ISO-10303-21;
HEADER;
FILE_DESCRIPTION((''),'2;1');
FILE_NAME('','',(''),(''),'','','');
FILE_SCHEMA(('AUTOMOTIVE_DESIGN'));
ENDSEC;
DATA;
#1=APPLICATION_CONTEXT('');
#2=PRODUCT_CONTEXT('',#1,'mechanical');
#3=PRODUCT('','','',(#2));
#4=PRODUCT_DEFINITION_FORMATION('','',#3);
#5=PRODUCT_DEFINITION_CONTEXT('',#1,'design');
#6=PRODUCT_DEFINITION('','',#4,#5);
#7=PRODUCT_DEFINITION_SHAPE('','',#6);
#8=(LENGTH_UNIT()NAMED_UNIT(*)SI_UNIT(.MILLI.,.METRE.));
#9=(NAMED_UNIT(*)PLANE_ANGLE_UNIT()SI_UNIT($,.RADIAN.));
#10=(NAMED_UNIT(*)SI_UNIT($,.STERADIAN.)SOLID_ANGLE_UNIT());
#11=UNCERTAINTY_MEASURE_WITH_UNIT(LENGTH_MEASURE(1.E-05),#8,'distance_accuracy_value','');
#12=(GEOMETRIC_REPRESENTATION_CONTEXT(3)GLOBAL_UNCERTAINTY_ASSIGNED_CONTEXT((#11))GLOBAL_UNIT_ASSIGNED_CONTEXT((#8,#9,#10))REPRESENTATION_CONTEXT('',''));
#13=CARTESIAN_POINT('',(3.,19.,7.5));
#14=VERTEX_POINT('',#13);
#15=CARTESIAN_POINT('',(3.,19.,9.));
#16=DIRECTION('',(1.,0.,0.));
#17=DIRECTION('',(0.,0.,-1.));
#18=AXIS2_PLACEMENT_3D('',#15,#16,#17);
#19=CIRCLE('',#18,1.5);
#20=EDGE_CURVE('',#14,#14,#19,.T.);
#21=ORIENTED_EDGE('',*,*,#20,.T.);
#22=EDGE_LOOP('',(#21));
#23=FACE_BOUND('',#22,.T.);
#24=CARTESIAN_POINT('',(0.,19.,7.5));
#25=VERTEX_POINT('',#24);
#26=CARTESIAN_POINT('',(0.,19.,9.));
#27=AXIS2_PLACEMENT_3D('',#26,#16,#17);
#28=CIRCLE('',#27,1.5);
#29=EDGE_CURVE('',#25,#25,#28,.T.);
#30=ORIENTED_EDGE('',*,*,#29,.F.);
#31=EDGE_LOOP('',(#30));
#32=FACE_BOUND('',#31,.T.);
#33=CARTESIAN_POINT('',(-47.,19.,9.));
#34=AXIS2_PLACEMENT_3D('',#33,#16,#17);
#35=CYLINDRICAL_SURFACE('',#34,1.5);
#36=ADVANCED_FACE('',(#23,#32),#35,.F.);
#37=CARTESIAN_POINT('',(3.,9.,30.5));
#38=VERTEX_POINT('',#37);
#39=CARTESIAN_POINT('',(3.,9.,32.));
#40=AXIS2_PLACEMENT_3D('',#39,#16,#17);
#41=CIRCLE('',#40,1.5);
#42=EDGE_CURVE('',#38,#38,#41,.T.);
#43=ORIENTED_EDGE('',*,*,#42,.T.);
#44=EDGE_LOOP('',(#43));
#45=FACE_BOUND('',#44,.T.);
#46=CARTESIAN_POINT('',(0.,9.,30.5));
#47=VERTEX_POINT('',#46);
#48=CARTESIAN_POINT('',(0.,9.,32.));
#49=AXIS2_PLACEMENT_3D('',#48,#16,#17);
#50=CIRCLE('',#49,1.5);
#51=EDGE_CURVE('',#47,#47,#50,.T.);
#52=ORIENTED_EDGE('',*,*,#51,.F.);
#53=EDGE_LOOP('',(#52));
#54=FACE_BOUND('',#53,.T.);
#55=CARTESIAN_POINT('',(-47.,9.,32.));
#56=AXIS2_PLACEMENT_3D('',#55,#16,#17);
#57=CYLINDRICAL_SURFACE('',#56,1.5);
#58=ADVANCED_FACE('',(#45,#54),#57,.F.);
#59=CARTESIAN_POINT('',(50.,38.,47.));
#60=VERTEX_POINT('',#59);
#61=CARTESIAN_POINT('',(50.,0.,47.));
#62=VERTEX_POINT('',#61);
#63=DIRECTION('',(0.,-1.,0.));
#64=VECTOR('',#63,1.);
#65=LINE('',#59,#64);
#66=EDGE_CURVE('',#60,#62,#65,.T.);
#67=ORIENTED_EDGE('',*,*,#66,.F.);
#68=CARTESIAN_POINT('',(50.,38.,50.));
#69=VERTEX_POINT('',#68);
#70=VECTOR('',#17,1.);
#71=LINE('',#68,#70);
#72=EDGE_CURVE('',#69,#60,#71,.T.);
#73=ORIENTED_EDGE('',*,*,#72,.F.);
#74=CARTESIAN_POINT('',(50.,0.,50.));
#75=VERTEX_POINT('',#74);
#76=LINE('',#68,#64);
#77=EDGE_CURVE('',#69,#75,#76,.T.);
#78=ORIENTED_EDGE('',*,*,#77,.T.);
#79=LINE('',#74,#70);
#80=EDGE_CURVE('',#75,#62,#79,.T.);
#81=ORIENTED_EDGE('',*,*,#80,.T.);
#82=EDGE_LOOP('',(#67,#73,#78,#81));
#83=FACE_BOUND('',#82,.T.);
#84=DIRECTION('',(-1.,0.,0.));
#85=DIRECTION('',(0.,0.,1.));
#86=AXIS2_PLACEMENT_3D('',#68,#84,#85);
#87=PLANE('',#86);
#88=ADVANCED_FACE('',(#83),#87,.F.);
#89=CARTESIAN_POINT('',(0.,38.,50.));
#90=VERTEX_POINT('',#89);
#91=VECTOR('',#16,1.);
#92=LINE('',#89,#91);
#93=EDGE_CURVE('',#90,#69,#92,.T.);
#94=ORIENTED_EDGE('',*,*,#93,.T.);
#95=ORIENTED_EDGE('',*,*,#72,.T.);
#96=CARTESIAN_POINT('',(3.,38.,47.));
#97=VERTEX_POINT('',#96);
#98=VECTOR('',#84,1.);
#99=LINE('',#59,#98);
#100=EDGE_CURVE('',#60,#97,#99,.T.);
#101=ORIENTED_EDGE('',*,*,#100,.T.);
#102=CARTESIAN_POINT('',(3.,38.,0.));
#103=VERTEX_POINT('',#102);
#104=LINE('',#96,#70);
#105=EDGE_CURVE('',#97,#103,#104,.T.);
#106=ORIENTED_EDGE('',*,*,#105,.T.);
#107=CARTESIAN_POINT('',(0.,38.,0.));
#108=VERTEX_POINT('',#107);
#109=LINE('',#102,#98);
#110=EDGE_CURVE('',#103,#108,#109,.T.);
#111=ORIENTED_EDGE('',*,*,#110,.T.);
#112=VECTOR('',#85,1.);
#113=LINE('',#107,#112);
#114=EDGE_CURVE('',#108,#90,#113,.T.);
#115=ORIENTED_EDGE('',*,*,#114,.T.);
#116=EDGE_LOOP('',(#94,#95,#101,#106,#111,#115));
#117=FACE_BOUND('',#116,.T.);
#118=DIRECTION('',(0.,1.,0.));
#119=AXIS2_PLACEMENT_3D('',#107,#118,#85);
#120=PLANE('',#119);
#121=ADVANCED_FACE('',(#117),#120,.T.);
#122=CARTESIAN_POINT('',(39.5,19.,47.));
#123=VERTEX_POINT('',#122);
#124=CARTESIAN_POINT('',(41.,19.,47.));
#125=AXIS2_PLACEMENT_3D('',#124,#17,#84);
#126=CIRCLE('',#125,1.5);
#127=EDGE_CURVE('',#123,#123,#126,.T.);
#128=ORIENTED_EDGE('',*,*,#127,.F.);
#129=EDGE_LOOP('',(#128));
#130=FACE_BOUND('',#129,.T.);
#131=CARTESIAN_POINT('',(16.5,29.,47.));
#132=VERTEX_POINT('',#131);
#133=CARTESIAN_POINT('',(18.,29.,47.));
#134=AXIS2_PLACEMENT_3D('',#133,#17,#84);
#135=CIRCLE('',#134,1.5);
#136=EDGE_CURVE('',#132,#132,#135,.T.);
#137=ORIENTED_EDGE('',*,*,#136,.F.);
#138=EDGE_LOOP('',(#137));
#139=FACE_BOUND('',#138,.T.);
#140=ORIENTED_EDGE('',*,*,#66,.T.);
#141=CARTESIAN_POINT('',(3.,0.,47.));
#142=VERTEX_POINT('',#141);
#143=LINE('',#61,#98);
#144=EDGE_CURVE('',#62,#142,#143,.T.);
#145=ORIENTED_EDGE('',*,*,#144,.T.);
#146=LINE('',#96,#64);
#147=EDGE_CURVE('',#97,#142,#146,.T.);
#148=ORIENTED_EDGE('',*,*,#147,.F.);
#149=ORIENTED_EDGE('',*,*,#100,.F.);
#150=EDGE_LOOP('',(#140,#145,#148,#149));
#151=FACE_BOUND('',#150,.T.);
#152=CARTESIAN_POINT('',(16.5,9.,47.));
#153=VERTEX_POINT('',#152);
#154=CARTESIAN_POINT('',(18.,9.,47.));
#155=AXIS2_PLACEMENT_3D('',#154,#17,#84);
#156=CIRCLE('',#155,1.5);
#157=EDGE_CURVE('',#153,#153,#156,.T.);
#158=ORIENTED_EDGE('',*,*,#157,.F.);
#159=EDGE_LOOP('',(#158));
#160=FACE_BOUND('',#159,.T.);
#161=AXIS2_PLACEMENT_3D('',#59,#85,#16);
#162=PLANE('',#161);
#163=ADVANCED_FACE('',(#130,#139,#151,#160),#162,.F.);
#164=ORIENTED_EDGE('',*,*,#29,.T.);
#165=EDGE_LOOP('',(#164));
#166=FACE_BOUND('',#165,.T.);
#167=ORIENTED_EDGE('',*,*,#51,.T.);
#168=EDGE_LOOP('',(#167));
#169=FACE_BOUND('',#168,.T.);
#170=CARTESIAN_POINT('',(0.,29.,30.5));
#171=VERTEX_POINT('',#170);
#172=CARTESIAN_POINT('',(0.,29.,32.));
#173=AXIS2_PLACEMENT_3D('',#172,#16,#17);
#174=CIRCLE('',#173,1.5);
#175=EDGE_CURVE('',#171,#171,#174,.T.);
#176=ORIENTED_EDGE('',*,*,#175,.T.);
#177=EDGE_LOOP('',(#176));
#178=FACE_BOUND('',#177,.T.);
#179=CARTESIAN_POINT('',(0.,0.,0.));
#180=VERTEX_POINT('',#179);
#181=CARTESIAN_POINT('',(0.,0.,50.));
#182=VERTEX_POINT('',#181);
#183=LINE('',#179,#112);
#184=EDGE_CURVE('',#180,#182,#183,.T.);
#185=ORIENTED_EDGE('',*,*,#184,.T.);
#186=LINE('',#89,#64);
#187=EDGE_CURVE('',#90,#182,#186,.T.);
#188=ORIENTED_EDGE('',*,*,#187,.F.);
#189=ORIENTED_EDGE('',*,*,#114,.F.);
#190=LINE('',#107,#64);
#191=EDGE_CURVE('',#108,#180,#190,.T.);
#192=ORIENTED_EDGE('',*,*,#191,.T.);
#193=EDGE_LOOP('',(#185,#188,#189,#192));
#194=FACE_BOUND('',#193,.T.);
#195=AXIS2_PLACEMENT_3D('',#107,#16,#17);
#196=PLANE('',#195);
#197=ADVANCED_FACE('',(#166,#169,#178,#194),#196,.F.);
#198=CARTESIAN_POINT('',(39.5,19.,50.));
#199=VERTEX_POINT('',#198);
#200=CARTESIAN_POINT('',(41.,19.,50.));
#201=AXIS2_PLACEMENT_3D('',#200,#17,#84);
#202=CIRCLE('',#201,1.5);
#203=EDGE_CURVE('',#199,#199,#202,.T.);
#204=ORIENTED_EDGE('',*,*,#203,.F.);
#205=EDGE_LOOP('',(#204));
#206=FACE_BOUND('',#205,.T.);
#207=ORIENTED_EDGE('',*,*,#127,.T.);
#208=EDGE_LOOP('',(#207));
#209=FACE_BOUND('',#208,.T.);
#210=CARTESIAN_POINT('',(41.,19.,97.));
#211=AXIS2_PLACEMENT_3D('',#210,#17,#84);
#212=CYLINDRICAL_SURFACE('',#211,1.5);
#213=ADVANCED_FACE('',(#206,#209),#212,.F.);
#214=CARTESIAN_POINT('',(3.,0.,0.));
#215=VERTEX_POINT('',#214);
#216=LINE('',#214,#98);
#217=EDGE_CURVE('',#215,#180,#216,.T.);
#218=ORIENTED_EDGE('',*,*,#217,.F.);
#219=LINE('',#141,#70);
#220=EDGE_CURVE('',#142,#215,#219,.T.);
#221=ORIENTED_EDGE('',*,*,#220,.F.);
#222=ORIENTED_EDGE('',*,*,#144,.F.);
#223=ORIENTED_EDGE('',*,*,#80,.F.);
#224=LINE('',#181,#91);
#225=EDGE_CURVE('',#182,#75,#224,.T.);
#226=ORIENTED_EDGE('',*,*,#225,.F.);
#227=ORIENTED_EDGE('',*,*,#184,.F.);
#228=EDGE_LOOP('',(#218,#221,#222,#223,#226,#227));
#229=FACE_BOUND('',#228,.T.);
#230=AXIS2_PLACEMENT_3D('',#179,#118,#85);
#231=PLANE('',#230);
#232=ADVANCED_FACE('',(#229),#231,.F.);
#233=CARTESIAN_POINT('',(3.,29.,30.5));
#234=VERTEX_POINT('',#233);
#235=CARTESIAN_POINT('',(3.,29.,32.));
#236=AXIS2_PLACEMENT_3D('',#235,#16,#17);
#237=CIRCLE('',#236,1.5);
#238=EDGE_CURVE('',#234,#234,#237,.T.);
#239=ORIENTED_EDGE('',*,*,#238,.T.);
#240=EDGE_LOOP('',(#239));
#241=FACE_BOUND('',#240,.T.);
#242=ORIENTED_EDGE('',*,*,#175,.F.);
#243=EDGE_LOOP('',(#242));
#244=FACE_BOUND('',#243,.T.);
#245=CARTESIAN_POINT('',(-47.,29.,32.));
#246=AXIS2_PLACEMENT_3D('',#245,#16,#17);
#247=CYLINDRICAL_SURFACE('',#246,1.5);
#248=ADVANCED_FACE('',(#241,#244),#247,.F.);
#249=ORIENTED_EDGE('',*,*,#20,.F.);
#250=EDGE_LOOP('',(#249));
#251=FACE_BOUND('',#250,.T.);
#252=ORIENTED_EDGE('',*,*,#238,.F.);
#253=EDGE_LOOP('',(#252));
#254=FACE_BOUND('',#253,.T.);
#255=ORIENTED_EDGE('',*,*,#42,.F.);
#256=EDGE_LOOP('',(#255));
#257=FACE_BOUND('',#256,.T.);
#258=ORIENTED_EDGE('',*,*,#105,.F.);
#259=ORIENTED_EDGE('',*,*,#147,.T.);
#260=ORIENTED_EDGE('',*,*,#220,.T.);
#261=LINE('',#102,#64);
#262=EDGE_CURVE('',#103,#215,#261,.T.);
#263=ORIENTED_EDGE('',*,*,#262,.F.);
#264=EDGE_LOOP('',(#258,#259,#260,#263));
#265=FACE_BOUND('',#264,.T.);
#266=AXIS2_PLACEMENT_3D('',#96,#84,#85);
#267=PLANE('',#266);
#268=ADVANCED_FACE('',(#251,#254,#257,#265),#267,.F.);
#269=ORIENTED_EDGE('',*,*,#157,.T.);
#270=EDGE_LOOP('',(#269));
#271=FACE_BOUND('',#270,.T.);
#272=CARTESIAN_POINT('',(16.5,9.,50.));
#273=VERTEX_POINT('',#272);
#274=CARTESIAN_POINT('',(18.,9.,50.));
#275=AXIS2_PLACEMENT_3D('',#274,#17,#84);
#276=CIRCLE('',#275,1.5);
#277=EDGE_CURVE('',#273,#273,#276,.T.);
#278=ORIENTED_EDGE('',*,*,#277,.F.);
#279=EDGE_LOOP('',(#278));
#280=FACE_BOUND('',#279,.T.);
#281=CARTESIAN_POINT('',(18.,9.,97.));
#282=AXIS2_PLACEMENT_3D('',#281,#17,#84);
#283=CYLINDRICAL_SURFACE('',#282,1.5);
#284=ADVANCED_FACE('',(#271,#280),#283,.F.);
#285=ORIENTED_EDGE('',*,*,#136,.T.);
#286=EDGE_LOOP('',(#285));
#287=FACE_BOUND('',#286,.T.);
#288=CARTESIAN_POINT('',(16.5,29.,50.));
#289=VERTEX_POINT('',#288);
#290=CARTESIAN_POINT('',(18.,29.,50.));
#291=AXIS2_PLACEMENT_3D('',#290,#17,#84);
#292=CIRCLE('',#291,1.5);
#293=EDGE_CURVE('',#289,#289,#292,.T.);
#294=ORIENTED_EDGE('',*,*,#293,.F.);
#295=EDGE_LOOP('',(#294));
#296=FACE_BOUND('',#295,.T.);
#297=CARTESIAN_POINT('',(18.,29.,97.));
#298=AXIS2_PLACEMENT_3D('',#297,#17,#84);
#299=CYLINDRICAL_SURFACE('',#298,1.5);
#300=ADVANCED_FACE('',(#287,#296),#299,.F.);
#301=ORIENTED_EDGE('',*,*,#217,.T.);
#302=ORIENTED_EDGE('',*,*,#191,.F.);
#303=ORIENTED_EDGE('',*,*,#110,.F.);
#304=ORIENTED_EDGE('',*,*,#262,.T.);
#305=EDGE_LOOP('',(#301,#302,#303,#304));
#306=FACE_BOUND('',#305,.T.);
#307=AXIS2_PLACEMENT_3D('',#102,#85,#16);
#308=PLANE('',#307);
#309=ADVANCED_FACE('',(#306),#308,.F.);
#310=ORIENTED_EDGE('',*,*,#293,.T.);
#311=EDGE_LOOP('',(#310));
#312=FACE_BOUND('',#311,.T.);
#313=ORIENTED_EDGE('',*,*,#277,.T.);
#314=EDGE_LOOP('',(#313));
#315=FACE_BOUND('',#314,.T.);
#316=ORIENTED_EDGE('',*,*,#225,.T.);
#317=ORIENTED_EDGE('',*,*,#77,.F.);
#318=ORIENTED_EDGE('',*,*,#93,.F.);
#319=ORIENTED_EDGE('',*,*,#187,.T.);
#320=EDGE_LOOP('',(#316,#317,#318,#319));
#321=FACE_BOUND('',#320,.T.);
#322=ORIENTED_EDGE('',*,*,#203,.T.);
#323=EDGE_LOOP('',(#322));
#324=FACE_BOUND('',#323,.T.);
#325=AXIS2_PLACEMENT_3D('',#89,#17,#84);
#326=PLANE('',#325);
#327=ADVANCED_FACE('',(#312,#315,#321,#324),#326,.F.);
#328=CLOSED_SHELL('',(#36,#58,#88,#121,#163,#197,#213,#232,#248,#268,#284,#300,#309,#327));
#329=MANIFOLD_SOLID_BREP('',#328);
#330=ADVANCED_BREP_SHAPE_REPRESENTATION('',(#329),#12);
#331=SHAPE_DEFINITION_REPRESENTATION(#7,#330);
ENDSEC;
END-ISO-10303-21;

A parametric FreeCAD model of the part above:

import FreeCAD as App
import Part
import Sketcher
Q = App.Units.Quantity

doc = App.newDocument("Part")
body = doc.addObject("PartDesign::Body", "Body")

# Sketch on XZ plane
sketch1 = body.newObject("Sketcher::SketchObject", "Sketch")
sketch1.AttachmentSupport = (doc.getObject("XZ_Plane"), [""])
sketch1.MapMode = "FlatFace"
sketch1.addGeometry([
    Part.LineSegment(App.Vector(0, 0, 0), App.Vector(0, 50, 0)),  # 0
    Part.LineSegment(App.Vector(0, 50, 0), App.Vector(50, 50, 0)),  # 1
    Part.LineSegment(App.Vector(50, 50, 0), App.Vector(50, 47, 0)),  # 2
    Part.LineSegment(App.Vector(50, 47, 0), App.Vector(3, 47, 0)),  # 3
    Part.LineSegment(App.Vector(3, 47, 0), App.Vector(3, 0, 0)),  # 4
    Part.LineSegment(App.Vector(3, 0, 0), App.Vector(0, 0, 0)),  # 5
], False)
sketch1.addConstraint([
    Sketcher.Constraint("Coincident", 0, 2, 1, 1),
    Sketcher.Constraint("Coincident", 1, 2, 2, 1),
    Sketcher.Constraint("Coincident", 2, 2, 3, 1),
    Sketcher.Constraint("Coincident", 3, 2, 4, 1),
    Sketcher.Constraint("Coincident", 4, 2, 5, 1),
    Sketcher.Constraint("Coincident", 5, 2, 0, 1),
    Sketcher.Constraint("Vertical", 0),
    Sketcher.Constraint("Horizontal", 1),
    Sketcher.Constraint("Vertical", 2),
    Sketcher.Constraint("Horizontal", 3),
    Sketcher.Constraint("Vertical", 4),
    Sketcher.Constraint("Horizontal", 5),
    Sketcher.Constraint("Coincident", 5, 2, -1, 1),
    Sketcher.Constraint("Equal", 1, 0),
    Sketcher.Constraint("Equal", 5, 2),
    Sketcher.Constraint("DistanceX", 1, 1, 1, 2, Q("50 mm")),
    Sketcher.Constraint("DistanceX", 3, 2, 3, 1, Q("47 mm")),
])
pad1 = body.newObject("PartDesign::Pad", "Pad")
pad1.Profile = sketch1
pad1.Length = 38
pad1.Reversed = True

# Sketch on YZ plane
sketch2 = body.newObject("Sketcher::SketchObject", "Sketch001")
sketch2.AttachmentSupport = (doc.getObject("YZ_Plane"), [""])
sketch2.MapMode = "FlatFace"
sketch2.AttachmentOffset = App.Placement(App.Vector(0, 0, 3), App.Rotation())
sketch2.addGeometry([
    Part.Circle(App.Vector(29, 32, 0), App.Vector(0, 0, 1), 1.5),
    Part.Circle(App.Vector(9, 32, 0), App.Vector(0, 0, 1), 1.5),
    Part.Circle(App.Vector(19, 9, 0), App.Vector(0, 0, 1), 1.5),
], False)
sketch2.addConstraint([
    Sketcher.Constraint("Equal", 0, 1),
    Sketcher.Constraint("Equal", 1, 2),
    Sketcher.Constraint("Horizontal", 0, 3, 1, 3),
    Sketcher.Constraint("Diameter", 0, Q("3 mm")),
    Sketcher.Constraint("DistanceX", -1, 1, 0, 3, Q("29 mm")),
    Sketcher.Constraint("DistanceY", -1, 1, 0, 3, Q("32 mm")),
    Sketcher.Constraint("DistanceX", -1, 1, 1, 3, Q("9 mm")),
    Sketcher.Constraint("DistanceX", -1, 1, 2, 3, Q("19 mm")),
    Sketcher.Constraint("DistanceY", -1, 1, 2, 3, Q("9 mm")),
])
pocket1 = body.newObject("PartDesign::Pocket", "Pocket")
pocket1.Profile = sketch2
pocket1.Length = 50

# Sketch on XY plane
sketch3 = body.newObject("Sketcher::SketchObject", "Sketch002")
sketch3.AttachmentSupport = (doc.getObject("XY_Plane"), [""])
sketch3.MapMode = "FlatFace"
sketch3.AttachmentOffset = App.Placement(App.Vector(0, 0, 47), App.Rotation())
sketch3.addGeometry([
    Part.Circle(App.Vector(18, 29, 0), App.Vector(0, 0, 1), 1.5),
    Part.Circle(App.Vector(18, 9, 0), App.Vector(0, 0, 1), 1.5),
    Part.Circle(App.Vector(41, 19, 0), App.Vector(0, 0, 1), 1.5),
], False)
sketch3.addConstraint([
    Sketcher.Constraint("Equal", 0, 1),
    Sketcher.Constraint("Equal", 1, 2),
    Sketcher.Constraint("Vertical", 0, 3, 1, 3),
    Sketcher.Constraint("Diameter", 0, Q("3 mm")),
    Sketcher.Constraint("DistanceX", -1, 1, 0, 3, Q("18 mm")),
    Sketcher.Constraint("DistanceY", -1, 1, 0, 3, Q("29 mm")),
    Sketcher.Constraint("DistanceY", -1, 1, 1, 3, Q("9 mm")),
    Sketcher.Constraint("DistanceX", -1, 1, 2, 3, Q("41 mm")),
    Sketcher.Constraint("DistanceY", -1, 1, 2, 3, Q("19 mm")),
])
pocket2 = body.newObject("PartDesign::Pocket", "Pocket001")
pocket2.Profile = sketch3
pocket2.Length = 50
pocket2.Reversed = True

doc.recompute()
